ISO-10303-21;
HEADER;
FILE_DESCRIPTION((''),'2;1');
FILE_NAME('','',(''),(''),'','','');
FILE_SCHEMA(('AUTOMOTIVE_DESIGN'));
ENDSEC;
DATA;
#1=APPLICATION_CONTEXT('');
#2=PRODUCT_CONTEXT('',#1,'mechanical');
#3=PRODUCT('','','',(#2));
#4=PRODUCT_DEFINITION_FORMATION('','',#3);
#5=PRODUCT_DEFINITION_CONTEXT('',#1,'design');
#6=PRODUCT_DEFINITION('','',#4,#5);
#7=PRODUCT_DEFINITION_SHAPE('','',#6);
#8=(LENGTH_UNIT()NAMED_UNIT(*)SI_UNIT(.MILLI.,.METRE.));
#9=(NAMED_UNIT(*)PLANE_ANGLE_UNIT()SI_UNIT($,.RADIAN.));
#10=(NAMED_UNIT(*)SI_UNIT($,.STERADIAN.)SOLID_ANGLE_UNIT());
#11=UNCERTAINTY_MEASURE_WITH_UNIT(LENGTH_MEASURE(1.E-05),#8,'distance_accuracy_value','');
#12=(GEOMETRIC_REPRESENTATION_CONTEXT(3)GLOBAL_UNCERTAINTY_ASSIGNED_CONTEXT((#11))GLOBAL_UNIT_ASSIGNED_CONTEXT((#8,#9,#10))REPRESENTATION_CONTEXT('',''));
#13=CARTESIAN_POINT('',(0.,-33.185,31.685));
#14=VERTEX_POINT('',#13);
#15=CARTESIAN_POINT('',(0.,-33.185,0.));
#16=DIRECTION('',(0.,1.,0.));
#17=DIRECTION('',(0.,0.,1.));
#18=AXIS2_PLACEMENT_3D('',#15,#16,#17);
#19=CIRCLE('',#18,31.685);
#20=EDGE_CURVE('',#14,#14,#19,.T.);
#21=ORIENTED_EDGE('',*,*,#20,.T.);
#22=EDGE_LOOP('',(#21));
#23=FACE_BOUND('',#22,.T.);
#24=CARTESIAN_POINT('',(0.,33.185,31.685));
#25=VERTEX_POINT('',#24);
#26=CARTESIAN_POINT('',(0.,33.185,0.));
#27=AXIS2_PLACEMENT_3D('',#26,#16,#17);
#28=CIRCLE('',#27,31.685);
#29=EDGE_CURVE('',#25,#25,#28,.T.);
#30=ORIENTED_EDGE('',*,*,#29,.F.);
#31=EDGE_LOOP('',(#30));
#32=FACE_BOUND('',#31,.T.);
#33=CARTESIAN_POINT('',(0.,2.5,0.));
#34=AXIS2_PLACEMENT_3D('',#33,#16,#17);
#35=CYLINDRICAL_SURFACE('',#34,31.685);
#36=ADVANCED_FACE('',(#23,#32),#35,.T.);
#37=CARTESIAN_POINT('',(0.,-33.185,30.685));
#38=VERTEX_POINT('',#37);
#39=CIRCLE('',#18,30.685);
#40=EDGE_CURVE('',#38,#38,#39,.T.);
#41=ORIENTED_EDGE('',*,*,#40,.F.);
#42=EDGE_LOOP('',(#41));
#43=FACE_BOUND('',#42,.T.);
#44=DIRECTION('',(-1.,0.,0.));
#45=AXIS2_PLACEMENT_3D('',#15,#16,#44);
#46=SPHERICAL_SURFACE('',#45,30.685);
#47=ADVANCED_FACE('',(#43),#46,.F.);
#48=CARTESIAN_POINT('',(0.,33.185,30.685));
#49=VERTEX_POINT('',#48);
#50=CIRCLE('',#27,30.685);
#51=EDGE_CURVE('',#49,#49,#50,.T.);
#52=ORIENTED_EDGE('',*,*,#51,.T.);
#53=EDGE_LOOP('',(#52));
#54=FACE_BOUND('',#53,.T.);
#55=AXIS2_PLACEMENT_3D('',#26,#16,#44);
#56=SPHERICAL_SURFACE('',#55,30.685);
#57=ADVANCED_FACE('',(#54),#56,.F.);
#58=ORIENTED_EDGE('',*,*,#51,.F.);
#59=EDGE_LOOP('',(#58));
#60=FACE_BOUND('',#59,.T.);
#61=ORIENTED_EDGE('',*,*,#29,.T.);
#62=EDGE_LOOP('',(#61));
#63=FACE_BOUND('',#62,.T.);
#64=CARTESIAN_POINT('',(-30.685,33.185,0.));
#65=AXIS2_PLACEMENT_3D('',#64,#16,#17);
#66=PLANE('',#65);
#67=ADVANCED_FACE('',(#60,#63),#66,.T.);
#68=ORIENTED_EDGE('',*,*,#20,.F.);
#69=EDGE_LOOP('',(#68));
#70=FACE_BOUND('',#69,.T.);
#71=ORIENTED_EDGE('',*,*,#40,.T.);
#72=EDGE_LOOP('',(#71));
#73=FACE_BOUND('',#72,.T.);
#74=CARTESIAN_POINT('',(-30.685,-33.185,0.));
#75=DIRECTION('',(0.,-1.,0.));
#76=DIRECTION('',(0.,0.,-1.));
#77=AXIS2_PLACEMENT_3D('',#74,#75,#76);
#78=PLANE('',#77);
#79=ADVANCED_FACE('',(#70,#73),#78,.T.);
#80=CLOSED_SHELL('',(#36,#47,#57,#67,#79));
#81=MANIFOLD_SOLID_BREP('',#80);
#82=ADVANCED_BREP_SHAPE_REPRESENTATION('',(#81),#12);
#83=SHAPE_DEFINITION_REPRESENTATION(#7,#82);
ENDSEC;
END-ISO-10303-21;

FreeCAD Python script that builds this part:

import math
import FreeCAD as App
import Part
import Sketcher

doc = App.newDocument("Part")
body = doc.addObject("PartDesign::Body", "Body")

sketch1 = doc.addObject("Sketcher::SketchObject", "Sketch")
body.addObject(sketch1)
sketch1.AttachmentSupport = (doc.XY_Plane, [""])
sketch1.MapMode = "FlatFace"
sketch1.addGeometry(Part.LineSegment(App.Vector(-31.7, 33.2, 0), App.Vector(-31.7, -33.2, 0)), False)
sketch1.addGeometry(Part.LineSegment(App.Vector(-31.7, -33.2, 0), App.Vector(-30.7, -33.2, 0)), False)
sketch1.addGeometry(Part.ArcOfCircle(Part.Circle(App.Vector(0, -33.2, 0), App.Vector(0, 0, 1), 30.7), math.radians(90), math.radians(180)), False)
sketch1.addGeometry(Part.LineSegment(App.Vector(0, -2.5, 0), App.Vector(0, 2.5, 0)), False)
sketch1.addGeometry(Part.ArcOfCircle(Part.Circle(App.Vector(0, 33.2, 0), App.Vector(0, 0, 1), 30.7), math.radians(180), math.radians(270)), False)
sketch1.addGeometry(Part.LineSegment(App.Vector(-30.7, 33.2, 0), App.Vector(-31.7, 33.2, 0)), False)
sketch1.addConstraint(Sketcher.Constraint("Coincident", 0, 2, 1, 1))
sketch1.addConstraint(Sketcher.Constraint("Coincident", 1, 2, 2, 2))
sketch1.addConstraint(Sketcher.Constraint("Coincident", 2, 1, 3, 1))
sketch1.addConstraint(Sketcher.Constraint("Coincident", 3, 2, 4, 2))
sketch1.addConstraint(Sketcher.Constraint("Coincident", 4, 1, 5, 1))
sketch1.addConstraint(Sketcher.Constraint("Coincident", 5, 2, 0, 1))
sketch1.addConstraint(Sketcher.Constraint("Vertical", 0))
sketch1.addConstraint(Sketcher.Constraint("Horizontal", 1))
sketch1.addConstraint(Sketcher.Constraint("Vertical", 3))
sketch1.addConstraint(Sketcher.Constraint("Horizontal", 5))
sketch1.addConstraint(Sketcher.Constraint("Equal", 2, 4))
sketch1.addConstraint(Sketcher.Constraint("Symmetric", 2, 3, 4, 3, -1, 1))
sketch1.addConstraint(Sketcher.Constraint("Symmetric", 1, 2, 4, 1, -1))
sketch1.addConstraint(Sketcher.Constraint("PointOnObject", 2, 1, -2))
sketch1.addConstraint(Sketcher.Constraint("Horizontal", 2, 3, 0, 2))
sketch1.addConstraint(Sketcher.Constraint("DistanceX", 1, 1, 1, 2, 1.0))
sketch1.addConstraint(Sketcher.Constraint("DistanceY", 3, 1, 3, 2, 5.0))
sketch1.addConstraint(Sketcher.Constraint("Radius", 2, 30.685))
revolution = doc.addObject("PartDesign::Revolution", "Revolution")
body.addObject(revolution)
revolution.Profile = sketch1
revolution.ReferenceAxis = (sketch1, ["V_Axis"])
revolution.Angle = 360

doc.recompute()
